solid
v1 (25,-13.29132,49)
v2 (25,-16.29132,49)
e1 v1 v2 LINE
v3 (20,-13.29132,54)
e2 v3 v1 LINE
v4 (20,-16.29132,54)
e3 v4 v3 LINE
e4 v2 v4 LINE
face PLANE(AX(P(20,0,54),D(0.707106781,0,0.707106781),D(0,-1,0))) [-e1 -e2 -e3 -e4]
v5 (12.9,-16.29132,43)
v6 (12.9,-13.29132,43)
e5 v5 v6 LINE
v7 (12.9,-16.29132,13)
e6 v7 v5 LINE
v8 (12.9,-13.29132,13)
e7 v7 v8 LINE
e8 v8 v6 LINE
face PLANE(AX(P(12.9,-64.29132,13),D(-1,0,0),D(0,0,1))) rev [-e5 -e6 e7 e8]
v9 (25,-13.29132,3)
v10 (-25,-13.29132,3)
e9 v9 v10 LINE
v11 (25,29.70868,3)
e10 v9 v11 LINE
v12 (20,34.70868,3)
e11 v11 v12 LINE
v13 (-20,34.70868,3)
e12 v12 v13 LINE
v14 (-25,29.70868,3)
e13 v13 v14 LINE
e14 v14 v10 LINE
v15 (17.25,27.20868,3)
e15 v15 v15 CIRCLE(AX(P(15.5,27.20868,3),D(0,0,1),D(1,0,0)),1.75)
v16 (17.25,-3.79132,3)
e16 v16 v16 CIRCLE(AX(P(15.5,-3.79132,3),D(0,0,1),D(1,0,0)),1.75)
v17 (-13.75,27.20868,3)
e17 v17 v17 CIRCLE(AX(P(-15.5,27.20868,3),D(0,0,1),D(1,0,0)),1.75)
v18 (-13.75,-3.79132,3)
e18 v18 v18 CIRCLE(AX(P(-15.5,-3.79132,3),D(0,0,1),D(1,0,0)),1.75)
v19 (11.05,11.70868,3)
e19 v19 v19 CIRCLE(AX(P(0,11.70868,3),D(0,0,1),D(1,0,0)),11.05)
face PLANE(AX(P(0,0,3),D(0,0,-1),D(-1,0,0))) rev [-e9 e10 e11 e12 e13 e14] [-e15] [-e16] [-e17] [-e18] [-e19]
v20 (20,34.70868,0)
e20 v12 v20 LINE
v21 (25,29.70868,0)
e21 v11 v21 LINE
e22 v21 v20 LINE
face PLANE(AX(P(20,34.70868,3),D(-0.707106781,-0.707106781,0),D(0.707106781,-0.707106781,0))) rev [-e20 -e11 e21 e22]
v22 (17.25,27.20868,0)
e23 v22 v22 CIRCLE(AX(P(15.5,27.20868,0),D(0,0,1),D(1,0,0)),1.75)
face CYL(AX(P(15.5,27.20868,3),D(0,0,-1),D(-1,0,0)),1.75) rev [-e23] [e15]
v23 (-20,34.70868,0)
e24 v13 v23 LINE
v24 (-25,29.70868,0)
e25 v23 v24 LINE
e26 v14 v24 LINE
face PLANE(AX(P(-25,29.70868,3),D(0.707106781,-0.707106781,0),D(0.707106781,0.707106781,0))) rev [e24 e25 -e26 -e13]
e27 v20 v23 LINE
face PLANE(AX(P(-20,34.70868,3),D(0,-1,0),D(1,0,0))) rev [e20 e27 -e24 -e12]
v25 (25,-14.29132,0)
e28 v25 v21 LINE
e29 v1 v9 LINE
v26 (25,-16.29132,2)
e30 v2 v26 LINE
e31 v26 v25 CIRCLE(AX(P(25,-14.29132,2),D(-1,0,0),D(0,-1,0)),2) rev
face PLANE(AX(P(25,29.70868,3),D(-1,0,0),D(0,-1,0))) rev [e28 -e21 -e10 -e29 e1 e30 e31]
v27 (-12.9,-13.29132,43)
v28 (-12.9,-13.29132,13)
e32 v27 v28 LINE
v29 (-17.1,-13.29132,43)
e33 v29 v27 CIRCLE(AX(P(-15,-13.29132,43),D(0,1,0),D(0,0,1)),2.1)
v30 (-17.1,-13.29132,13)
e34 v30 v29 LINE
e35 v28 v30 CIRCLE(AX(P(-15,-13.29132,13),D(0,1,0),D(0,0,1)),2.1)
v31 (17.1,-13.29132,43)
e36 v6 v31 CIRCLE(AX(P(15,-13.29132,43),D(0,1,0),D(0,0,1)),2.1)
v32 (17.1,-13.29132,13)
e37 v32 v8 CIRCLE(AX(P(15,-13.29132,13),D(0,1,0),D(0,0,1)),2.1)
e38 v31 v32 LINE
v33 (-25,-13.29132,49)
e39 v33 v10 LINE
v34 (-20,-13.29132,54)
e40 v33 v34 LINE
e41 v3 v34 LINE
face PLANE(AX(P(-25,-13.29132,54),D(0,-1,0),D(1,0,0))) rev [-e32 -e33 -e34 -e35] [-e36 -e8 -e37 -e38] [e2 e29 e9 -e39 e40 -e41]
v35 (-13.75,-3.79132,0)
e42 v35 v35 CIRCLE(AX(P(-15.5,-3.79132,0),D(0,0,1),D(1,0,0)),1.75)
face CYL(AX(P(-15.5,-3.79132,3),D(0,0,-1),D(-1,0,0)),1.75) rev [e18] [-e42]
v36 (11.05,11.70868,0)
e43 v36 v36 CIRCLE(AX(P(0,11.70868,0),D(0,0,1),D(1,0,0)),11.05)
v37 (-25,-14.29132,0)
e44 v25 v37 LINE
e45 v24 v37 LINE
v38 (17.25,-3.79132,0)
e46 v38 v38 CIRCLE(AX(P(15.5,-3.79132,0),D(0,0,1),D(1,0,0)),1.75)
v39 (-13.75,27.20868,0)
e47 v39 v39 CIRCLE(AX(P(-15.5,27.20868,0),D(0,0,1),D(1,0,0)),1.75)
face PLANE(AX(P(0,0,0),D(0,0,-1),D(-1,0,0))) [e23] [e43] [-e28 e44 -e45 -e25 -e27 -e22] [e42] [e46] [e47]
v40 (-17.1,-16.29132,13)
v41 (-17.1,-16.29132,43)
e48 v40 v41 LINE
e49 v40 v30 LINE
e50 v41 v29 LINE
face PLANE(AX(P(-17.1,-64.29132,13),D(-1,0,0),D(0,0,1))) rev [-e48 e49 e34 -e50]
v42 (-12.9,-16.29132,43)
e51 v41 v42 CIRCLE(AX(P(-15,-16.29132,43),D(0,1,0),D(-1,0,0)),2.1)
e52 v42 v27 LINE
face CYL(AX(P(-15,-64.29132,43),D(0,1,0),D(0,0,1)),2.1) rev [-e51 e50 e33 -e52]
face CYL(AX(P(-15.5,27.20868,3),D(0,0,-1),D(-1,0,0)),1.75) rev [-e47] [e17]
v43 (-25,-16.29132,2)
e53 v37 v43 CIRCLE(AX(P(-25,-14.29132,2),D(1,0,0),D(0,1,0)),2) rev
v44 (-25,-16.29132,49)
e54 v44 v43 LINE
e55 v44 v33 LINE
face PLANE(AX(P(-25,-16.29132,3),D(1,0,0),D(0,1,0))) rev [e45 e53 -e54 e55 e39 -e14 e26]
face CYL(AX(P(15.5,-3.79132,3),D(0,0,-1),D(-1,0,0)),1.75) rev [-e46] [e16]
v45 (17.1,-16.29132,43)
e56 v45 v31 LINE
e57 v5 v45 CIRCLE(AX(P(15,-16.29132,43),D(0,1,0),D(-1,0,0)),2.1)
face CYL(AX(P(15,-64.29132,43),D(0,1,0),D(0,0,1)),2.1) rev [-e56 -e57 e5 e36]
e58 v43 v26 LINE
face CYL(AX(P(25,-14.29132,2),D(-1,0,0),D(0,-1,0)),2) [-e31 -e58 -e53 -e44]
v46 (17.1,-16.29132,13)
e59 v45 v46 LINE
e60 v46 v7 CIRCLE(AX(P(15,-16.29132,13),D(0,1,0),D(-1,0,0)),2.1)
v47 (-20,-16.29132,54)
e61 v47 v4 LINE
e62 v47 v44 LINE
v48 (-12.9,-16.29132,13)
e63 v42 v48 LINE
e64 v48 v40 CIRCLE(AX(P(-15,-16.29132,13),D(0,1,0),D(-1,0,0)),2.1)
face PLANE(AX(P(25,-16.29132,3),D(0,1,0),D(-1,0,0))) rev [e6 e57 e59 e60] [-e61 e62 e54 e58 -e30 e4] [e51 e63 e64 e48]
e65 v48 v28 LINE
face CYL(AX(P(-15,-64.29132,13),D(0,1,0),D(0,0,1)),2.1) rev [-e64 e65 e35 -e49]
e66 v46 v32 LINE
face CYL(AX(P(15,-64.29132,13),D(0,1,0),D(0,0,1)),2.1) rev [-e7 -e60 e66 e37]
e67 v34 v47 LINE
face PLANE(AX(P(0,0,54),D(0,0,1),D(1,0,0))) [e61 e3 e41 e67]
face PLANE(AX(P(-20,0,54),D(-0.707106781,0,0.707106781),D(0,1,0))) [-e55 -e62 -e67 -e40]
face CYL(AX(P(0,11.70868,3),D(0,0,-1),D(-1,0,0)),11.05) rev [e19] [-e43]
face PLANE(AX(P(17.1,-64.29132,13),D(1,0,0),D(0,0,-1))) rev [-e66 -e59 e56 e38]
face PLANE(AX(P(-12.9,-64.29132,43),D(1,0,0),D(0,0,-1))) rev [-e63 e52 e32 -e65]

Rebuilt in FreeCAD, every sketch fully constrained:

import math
import FreeCAD as App
import Part
import Sketcher
Q = App.Units.Quantity


def edges_at(feature, points):
    """Names of the edges that pass closest to the given points."""
    edges = feature.Shape.Edges
    near = lambda p: min(range(len(edges)), key=lambda i: edges[i].distToShape(Part.Vertex(*p))[0])
    return sorted({f"Edge{near(p) + 1}" for p in points})

doc = App.newDocument("Part")
body = doc.addObject("PartDesign::Body", "Body")

# Sketch on XY plane
sketch1 = body.newObject("Sketcher::SketchObject", "Sketch")
sketch1.AttachmentSupport = (doc.getObject("XY_Plane"), [""])
sketch1.MapMode = "FlatFace"
sketch1.addGeometry([
    Part.LineSegment(App.Vector(25, -16.3, 0), App.Vector(25, 29.7, 0)),  # 0
    Part.LineSegment(App.Vector(25, 29.7, 0), App.Vector(20, 34.7, 0)),  # 1
    Part.LineSegment(App.Vector(20, 34.7, 0), App.Vector(-20, 34.7, 0)),  # 2
    Part.LineSegment(App.Vector(-20, 34.7, 0), App.Vector(-25, 29.7, 0)),  # 3
    Part.LineSegment(App.Vector(-25, 29.7, 0), App.Vector(-25, -16.3, 0)),  # 4
    Part.LineSegment(App.Vector(-25, -16.3, 0), App.Vector(25, -16.3, 0)),  # 5
    Part.Circle(App.Vector(15.5, -3.8, 0), App.Vector(0, 0, 1), 1.8),  # 6
    Part.Circle(App.Vector(-15.5, -3.8, 0), App.Vector(0, 0, 1), 1.8),  # 7
    Part.Circle(App.Vector(15.5, 27.2, 0), App.Vector(0, 0, 1), 1.8),  # 8
    Part.Circle(App.Vector(0, 11.7, 0), App.Vector(0, 0, 1), 11.1),  # 9
    Part.Circle(App.Vector(-15.5, 27.2, 0), App.Vector(0, 0, 1), 1.8),  # 10
], False)
sketch1.addConstraint([
    Sketcher.Constraint("Coincident", 0, 2, 1, 1),
    Sketcher.Constraint("Coincident", 1, 2, 2, 1),
    Sketcher.Constraint("Coincident", 2, 2, 3, 1),
    Sketcher.Constraint("Coincident", 3, 2, 4, 1),
    Sketcher.Constraint("Coincident", 4, 2, 5, 1),
    Sketcher.Constraint("Coincident", 5, 2, 0, 1),
    Sketcher.Constraint("Vertical", 0),
    Sketcher.Constraint("Horizontal", 2),
    Sketcher.Constraint("Vertical", 4),
    Sketcher.Constraint("Horizontal", 5),
    Sketcher.Constraint("Equal", 6, 7),
    Sketcher.Constraint("Equal", 7, 8),
    Sketcher.Constraint("Equal", 8, 10),
    Sketcher.Constraint("Symmetric", 6, 3, 7, 3, -2),
    Sketcher.Constraint("Symmetric", 8, 3, 10, 3, -2),
    Sketcher.Constraint("Symmetric", 0, 2, 3, 2, -2),
    Sketcher.Constraint("PointOnObject", 9, 3, -2),
    Sketcher.Constraint("Perpendicular", 1, 3),
    Sketcher.Constraint("Vertical", 6, 3, 8, 3),
    Sketcher.Constraint("Equal", 1, 3),
    Sketcher.Constraint("Diameter", 6, Q("3.5 mm")),
    Sketcher.Constraint("Diameter", 9, Q("22.1 mm")),
    Sketcher.Constraint("DistanceX", 2, 2, 2, 1, Q("40 mm")),
    Sketcher.Constraint("DistanceX", 5, 1, 5, 2, Q("50 mm")),
    Sketcher.Constraint("DistanceY", 0, 1, 0, 2, Q("46 mm")),
    Sketcher.Constraint("DistanceX", 7, 3, 6, 3, Q("31 mm")),
    Sketcher.Constraint("DistanceY", 6, 3, 8, 3, Q("31 mm")),
    Sketcher.Constraint("DistanceY", 9, 3, 0, 2, Q("18 mm")),
    Sketcher.Constraint("DistanceY", 6, 3, 9, 3, Q("15.5 mm")),
    Sketcher.Constraint("DistanceY", 6, 3, -1, 1, Q("3.79132 mm")),
])
pad1 = body.newObject("PartDesign::Pad", "Pad")
pad1.Profile = sketch1
pad1.Length = 3

# Sketch on XY plane
sketch2 = body.newObject("Sketcher::SketchObject", "Sketch001")
sketch2.AttachmentSupport = (doc.getObject("XY_Plane"), [""])
sketch2.MapMode = "FlatFace"
sketch2.AttachmentOffset = App.Placement(App.Vector(0, 0, 3), App.Rotation())
sketch2.addGeometry([
    Part.LineSegment(App.Vector(-25, -13.3, 0), App.Vector(-25, -16.3, 0)),
    Part.LineSegment(App.Vector(-25, -16.3, 0), App.Vector(25, -16.3, 0)),
    Part.LineSegment(App.Vector(25, -16.3, 0), App.Vector(25, -13.3, 0)),
    Part.LineSegment(App.Vector(25, -13.3, 0), App.Vector(-25, -13.3, 0)),
], False)
sketch2.addConstraint([
    Sketcher.Constraint("Coincident", 0, 2, 1, 1),
    Sketcher.Constraint("Coincident", 1, 2, 2, 1),
    Sketcher.Constraint("Coincident", 2, 2, 3, 1),
    Sketcher.Constraint("Coincident", 3, 2, 0, 1),
    Sketcher.Constraint("Vertical", 0),
    Sketcher.Constraint("Horizontal", 1),
    Sketcher.Constraint("Vertical", 2),
    Sketcher.Constraint("Horizontal", 3),
    Sketcher.Constraint("DistanceX", 1, 1, 1, 2, Q("50 mm")),
    Sketcher.Constraint("DistanceY", 0, 2, 0, 1, Q("3 mm")),
    Sketcher.Constraint("DistanceX", 0, 2, -1, 1, Q("25 mm")),
    Sketcher.Constraint("DistanceY", 0, 2, -1, 1, Q("16.29132 mm")),
])
pad2 = body.newObject("PartDesign::Pad", "Pad001")
pad2.Profile = sketch2
pad2.Length = 51
doc.recompute()

fillet = body.newObject("PartDesign::Fillet", "Fillet")
fillet.Base = (pad2, edges_at(pad2, [(0, -16.291, 0)]))
fillet.Radius = 2

# Sketch on XZ plane
sketch3 = body.newObject("Sketcher::SketchObject", "Sketch002")
sketch3.AttachmentSupport = (doc.getObject("XZ_Plane"), [""])
sketch3.MapMode = "FlatFace"
sketch3.AttachmentOffset = App.Placement(App.Vector(0, 0, 13.29132), App.Rotation())
sketch3.addGeometry([
    Part.LineSegment(App.Vector(-17.1, 13, 0), App.Vector(-17.1, 43, 0)),  # 0
    Part.ArcOfCircle(Part.Circle(App.Vector(-15, 43, 0), App.Vector(0, 0, 1), 2.1), math.radians(0), math.radians(180)),  # 1
    Part.LineSegment(App.Vector(-12.9, 43, 0), App.Vector(-12.9, 13, 0)),  # 2
    Part.ArcOfCircle(Part.Circle(App.Vector(-15, 13, 0), App.Vector(0, 0, 1), 2.1), math.radians(180), math.radians(360)),  # 3
    Part.LineSegment(App.Vector(12.9, 13, 0), App.Vector(12.9, 43, 0)),  # 4
    Part.ArcOfCircle(Part.Circle(App.Vector(15, 43, 0), App.Vector(0, 0, 1), 2.1), math.radians(0), math.radians(180)),  # 5
    Part.LineSegment(App.Vector(17.1, 43, 0), App.Vector(17.1, 13, 0)),  # 6
    Part.ArcOfCircle(Part.Circle(App.Vector(15, 13, 0), App.Vector(0, 0, 1), 2.1), math.radians(180), math.radians(360)),  # 7
], False)
sketch3.addConstraint([
    Sketcher.Constraint("Tangent", 0, 2, 1, 2),
    Sketcher.Constraint("Tangent", 1, 1, 2, 1),
    Sketcher.Constraint("Tangent", 2, 2, 3, 2),
    Sketcher.Constraint("Tangent", 3, 1, 0, 1),
    Sketcher.Constraint("Tangent", 4, 2, 5, 2),
    Sketcher.Constraint("Tangent", 5, 1, 6, 1),
    Sketcher.Constraint("Tangent", 6, 2, 7, 2),
    Sketcher.Constraint("Tangent", 7, 1, 4, 1),
    Sketcher.Constraint("Vertical", 0),
    Sketcher.Constraint("Vertical", 2),
    Sketcher.Constraint("Vertical", 4),
    Sketcher.Constraint("Vertical", 6),
    Sketcher.Constraint("Equal", 3, 5),
    Sketcher.Constraint("Symmetric", 1, 3, 5, 3, -2),
    Sketcher.Constraint("Horizontal", 3, 3, 7, 3),
    Sketcher.Constraint("Radius", 1, Q("2.1 mm")),
    Sketcher.Constraint("DistanceY", 0, 1, 0, 2, Q("30 mm")),
    Sketcher.Constraint("DistanceX", 1, 3, -1, 1, Q("15 mm")),
    Sketcher.Constraint("DistanceY", -1, 1, 1, 3, Q("43 mm")),
])
pocket1 = body.newObject("PartDesign::Pocket", "Pocket")
pocket1.Profile = sketch3
pocket1.Length = 51
pocket1.Reversed = True
doc.recompute()

chamfer = body.newObject("PartDesign::Chamfer", "Chamfer")
chamfer.Base = (pocket1, edges_at(pocket1, [(-25, -14.791, 54), (25, -14.791, 54)]))
chamfer.Size = 5

doc.recompute()
